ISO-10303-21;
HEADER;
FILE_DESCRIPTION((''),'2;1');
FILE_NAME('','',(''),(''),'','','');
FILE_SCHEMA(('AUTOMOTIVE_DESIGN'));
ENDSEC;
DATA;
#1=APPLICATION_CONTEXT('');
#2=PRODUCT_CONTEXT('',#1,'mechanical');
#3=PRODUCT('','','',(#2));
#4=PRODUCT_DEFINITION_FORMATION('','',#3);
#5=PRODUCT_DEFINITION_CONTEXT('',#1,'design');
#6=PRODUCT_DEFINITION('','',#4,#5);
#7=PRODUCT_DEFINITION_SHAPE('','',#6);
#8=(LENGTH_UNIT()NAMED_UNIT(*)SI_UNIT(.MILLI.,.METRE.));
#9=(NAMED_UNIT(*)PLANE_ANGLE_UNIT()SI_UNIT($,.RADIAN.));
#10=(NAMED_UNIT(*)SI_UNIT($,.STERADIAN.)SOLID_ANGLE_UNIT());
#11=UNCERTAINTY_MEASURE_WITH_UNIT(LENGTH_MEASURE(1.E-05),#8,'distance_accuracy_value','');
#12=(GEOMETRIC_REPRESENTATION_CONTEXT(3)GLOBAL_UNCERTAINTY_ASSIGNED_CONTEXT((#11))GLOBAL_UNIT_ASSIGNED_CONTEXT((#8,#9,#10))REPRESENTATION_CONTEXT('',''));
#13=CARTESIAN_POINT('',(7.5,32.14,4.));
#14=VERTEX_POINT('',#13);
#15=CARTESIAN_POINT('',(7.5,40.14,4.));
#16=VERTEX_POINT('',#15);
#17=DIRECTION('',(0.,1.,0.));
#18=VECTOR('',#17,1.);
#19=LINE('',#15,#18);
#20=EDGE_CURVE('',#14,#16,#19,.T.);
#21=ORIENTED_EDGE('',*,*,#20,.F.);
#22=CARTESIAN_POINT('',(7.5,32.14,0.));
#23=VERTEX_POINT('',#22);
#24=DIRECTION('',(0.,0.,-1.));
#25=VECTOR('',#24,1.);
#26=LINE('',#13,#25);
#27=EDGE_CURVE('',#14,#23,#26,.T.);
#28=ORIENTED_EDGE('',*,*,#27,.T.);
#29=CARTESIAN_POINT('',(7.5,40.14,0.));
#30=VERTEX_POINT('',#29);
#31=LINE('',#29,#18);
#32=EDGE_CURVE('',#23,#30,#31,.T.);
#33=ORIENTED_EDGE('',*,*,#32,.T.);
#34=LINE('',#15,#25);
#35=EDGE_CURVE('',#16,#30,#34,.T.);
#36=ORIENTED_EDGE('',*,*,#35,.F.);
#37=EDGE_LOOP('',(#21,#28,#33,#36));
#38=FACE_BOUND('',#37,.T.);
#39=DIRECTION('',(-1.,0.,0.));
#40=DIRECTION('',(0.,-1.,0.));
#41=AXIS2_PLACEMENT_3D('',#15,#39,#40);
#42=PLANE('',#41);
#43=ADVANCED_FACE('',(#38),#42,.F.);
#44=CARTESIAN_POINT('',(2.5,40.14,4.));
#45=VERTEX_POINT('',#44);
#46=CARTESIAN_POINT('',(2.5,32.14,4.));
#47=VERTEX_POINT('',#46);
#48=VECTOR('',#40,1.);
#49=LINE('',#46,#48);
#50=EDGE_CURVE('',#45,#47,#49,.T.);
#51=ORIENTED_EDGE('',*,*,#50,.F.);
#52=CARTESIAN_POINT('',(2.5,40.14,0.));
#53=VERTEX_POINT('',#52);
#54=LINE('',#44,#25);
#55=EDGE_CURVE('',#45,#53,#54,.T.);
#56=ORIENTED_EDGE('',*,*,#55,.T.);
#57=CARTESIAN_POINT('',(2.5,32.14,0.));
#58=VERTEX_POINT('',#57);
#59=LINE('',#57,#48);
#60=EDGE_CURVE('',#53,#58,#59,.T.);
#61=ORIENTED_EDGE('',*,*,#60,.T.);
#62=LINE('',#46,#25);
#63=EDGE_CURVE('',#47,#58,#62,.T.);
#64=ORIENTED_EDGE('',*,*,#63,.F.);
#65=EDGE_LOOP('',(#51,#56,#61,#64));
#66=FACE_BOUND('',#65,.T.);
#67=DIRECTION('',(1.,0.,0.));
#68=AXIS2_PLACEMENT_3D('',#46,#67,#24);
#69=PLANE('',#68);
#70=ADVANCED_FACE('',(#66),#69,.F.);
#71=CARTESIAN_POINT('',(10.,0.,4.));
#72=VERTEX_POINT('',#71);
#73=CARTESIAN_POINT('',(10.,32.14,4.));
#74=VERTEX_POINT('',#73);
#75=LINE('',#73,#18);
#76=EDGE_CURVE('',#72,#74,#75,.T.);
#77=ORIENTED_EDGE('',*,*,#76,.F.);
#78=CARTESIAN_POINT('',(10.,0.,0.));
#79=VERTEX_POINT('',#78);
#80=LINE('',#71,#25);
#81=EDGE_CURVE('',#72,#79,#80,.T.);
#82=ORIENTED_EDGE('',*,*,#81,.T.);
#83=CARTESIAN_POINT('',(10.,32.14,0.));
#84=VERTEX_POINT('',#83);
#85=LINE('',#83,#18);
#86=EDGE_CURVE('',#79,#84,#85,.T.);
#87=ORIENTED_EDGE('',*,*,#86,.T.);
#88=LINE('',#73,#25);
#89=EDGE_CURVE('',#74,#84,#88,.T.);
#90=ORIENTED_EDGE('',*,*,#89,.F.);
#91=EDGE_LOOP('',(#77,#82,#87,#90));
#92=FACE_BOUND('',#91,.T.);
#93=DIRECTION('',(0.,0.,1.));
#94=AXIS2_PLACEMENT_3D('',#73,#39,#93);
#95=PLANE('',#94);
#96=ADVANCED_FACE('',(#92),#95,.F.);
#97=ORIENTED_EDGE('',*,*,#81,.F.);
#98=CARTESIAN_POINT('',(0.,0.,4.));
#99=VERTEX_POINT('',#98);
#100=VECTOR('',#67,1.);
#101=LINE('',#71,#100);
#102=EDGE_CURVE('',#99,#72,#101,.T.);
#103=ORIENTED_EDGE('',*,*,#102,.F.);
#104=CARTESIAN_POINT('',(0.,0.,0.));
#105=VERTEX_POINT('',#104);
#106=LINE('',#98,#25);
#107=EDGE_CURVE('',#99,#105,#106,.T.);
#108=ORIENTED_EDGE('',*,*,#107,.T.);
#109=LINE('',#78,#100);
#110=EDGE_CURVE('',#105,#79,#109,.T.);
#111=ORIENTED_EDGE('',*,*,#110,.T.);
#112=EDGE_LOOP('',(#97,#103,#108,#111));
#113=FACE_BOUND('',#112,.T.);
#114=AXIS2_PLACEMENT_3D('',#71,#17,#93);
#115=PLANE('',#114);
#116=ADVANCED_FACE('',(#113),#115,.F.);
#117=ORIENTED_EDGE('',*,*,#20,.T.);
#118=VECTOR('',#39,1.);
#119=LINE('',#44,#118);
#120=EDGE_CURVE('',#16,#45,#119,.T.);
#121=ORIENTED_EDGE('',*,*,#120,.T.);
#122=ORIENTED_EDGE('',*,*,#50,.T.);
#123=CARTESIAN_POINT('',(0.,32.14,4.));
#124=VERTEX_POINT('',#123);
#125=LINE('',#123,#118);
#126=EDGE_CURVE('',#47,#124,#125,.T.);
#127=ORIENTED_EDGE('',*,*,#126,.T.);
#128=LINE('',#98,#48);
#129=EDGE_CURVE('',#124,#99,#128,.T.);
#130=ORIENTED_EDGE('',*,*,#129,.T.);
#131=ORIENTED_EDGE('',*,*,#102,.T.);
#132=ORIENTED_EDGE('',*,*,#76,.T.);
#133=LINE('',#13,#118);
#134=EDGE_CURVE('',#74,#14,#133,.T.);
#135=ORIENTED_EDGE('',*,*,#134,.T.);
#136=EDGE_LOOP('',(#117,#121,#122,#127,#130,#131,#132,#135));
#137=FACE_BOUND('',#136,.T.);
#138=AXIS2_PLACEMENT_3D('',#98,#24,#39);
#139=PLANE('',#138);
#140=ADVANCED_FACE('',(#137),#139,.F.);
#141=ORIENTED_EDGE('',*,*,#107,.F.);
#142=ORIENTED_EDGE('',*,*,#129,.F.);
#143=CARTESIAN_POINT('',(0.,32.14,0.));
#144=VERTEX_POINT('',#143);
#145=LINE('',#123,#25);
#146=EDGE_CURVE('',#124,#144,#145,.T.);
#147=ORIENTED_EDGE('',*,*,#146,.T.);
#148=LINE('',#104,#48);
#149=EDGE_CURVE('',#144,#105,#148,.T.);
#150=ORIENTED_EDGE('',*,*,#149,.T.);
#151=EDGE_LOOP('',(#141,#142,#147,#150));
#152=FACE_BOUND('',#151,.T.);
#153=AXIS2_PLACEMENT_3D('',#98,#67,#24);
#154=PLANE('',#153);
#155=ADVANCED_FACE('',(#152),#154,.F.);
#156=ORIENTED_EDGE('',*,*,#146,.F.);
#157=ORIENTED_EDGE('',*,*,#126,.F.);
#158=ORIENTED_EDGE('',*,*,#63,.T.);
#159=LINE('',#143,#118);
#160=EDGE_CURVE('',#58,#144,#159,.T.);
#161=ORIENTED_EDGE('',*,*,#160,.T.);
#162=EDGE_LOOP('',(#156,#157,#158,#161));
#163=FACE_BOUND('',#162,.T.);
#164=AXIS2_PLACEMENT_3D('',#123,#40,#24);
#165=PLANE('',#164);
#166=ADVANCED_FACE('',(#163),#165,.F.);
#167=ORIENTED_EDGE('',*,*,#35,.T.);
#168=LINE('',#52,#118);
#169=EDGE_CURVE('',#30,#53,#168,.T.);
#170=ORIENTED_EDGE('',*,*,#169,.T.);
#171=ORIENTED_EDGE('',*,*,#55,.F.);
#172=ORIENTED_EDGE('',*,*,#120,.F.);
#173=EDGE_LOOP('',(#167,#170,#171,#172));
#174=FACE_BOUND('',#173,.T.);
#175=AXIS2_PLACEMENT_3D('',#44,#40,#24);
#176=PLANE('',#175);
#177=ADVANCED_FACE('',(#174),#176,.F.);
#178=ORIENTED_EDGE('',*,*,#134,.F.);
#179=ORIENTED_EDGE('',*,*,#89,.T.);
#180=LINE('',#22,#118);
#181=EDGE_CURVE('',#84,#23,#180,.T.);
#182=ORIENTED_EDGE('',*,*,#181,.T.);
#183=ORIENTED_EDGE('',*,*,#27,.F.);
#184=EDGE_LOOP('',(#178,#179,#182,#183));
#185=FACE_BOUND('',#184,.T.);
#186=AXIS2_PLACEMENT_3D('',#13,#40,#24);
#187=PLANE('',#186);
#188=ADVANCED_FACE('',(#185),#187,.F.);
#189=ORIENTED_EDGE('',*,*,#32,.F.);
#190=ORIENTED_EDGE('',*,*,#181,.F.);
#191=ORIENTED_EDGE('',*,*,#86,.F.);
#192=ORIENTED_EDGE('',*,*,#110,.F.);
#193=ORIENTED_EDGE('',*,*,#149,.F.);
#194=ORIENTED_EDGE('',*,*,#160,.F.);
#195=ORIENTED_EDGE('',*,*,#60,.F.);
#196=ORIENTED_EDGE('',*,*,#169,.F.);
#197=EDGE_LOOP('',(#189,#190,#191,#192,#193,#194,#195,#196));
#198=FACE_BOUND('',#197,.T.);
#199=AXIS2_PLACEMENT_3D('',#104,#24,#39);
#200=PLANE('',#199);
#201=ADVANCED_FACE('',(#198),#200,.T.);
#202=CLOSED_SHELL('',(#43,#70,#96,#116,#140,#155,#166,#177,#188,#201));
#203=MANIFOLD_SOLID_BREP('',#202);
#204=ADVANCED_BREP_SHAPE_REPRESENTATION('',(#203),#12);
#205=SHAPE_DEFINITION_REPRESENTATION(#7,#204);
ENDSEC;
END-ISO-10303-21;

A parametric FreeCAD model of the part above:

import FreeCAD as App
import Part
import Sketcher
from FreeCAD import Vector

doc = App.newDocument("Part")
body = doc.addObject("PartDesign::Body", "Body")

# Sketch on XY plane
sketch1 = doc.addObject("Sketcher::SketchObject", "Sketch")
body.addObject(sketch1)
sketch1.AttachmentSupport = (doc.XY_Plane, [""])
sketch1.MapMode = "FlatFace"
sketch1.addGeometry([
    Part.LineSegment(Vector(0, 32.1, 0), Vector(0, 0, 0)),  # 0
    Part.LineSegment(Vector(0, 0, 0), Vector(10, 0, 0)),  # 1
    Part.LineSegment(Vector(10, 0, 0), Vector(10, 32.1, 0)),  # 2
    Part.LineSegment(Vector(10, 32.1, 0), Vector(7.5, 32.1, 0)),  # 3
    Part.LineSegment(Vector(7.5, 32.1, 0), Vector(7.5, 40.1, 0)),  # 4
    Part.LineSegment(Vector(7.5, 40.1, 0), Vector(2.5, 40.1, 0)),  # 5
    Part.LineSegment(Vector(2.5, 40.1, 0), Vector(2.5, 32.1, 0)),  # 6
    Part.LineSegment(Vector(2.5, 32.1, 0), Vector(0, 32.1, 0)),  # 7
], False)
sketch1.addConstraint([
    Sketcher.Constraint("Coincident", 0, 2, 1, 1),
    Sketcher.Constraint("Coincident", 1, 2, 2, 1),
    Sketcher.Constraint("Coincident", 2, 2, 3, 1),
    Sketcher.Constraint("Coincident", 3, 2, 4, 1),
    Sketcher.Constraint("Coincident", 4, 2, 5, 1),
    Sketcher.Constraint("Coincident", 5, 2, 6, 1),
    Sketcher.Constraint("Coincident", 6, 2, 7, 1),
    Sketcher.Constraint("Coincident", 7, 2, 0, 1),
    Sketcher.Constraint("Vertical", 0),
    Sketcher.Constraint("Horizontal", 1),
    Sketcher.Constraint("Vertical", 2),
    Sketcher.Constraint("Horizontal", 3),
    Sketcher.Constraint("Vertical", 4),
    Sketcher.Constraint("Horizontal", 5),
    Sketcher.Constraint("Vertical", 6),
    Sketcher.Constraint("Horizontal", 7),
    Sketcher.Constraint("Coincident", 0, 2, -1, 1),
    Sketcher.Constraint("Horizontal", 3, 2, 6, 2),
    Sketcher.Constraint("Equal", 3, 7),
    Sketcher.Constraint("DistanceX", 1, 1, 1, 2, 10.0),
    Sketcher.Constraint("DistanceX", 5, 2, 5, 1, 5.0),
    Sketcher.Constraint("DistanceY", 4, 1, 4, 2, 8.0),
    Sketcher.Constraint("DistanceY", 0, 2, 0, 1, 32.14),
])
pad1 = doc.addObject("PartDesign::Pad", "Pad")
body.addObject(pad1)
pad1.Profile = sketch1
pad1.Length = 4

doc.recompute()
